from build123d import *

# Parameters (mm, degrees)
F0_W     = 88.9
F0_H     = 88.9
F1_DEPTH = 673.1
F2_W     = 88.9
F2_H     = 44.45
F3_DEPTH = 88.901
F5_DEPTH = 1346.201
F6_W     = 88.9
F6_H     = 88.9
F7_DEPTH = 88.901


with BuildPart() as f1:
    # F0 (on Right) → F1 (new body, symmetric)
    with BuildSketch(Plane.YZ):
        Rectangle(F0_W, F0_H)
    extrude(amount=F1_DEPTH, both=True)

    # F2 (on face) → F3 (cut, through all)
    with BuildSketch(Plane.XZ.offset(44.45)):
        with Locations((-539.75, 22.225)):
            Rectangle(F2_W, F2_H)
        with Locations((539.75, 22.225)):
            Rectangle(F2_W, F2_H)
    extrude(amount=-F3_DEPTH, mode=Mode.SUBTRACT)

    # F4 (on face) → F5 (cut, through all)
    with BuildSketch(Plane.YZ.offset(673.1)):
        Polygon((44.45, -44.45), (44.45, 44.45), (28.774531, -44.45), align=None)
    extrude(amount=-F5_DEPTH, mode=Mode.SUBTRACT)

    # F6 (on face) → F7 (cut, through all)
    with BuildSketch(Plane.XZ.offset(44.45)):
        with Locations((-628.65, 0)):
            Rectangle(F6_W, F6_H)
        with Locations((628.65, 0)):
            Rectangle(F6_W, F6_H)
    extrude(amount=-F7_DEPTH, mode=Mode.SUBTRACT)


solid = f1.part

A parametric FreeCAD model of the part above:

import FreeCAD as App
import Part
import Sketcher
Q = App.Units.Quantity


def add_polygon(sketch, points):
    """Adds a closed chain of lines whose ends are joined by coincident constraints."""
    first, n = sketch.GeometryCount, len(points)
    for a, b in zip(points, points[1:] + points[:1]):
        sketch.addGeometry(Part.LineSegment(App.Vector(*a, 0), App.Vector(*b, 0)), False)
    for i in range(n):
        sketch.addConstraint(Sketcher.Constraint("Coincident", first + i, 2, first + (i + 1) % n, 1))

doc = App.newDocument("Part")
params = doc.addObject("Spreadsheet::Sheet", "Params")
for row, (alias, value) in enumerate([
    ("sketch1_width", "3.5 in"),
    ("pad1_length", "53 in"),
    ("sketch2_width", "3.5 in"),
    ("sketch2_height", "1.75 in"),
    ("sketch3_height", "3.5 in"),
    ("sketch4_width", "3.5 in"),
], start=1):
    params.set(f"A{row}", alias)
    params.set(f"B{row}", "=" + value)
    params.setAlias(f"B{row}", alias)

body = doc.addObject("PartDesign::Body", "Body")

sketch1 = doc.addObject("Sketcher::SketchObject", "Sketch")
body.addObject(sketch1)
sketch1.AttachmentSupport = (doc.YZ_Plane, [""])
sketch1.MapMode = "FlatFace"
add_polygon(sketch1, [(-44, 44), (-44, -44), (44, -44), (44, 44)])
sketch1.addConstraint(Sketcher.Constraint("Vertical", 0))
sketch1.addConstraint(Sketcher.Constraint("Horizontal", 1))
sketch1.addConstraint(Sketcher.Constraint("Vertical", 2))
sketch1.addConstraint(Sketcher.Constraint("Horizontal", 3))
sketch1.addConstraint(Sketcher.Constraint("Symmetric", 0, 2, 2, 2, -1, 1))
sketch1.addConstraint(Sketcher.Constraint("Equal", 3, 0))
sketch1.addConstraint(Sketcher.Constraint("DistanceX", 1, 1, 1, 2, Q("3.5 in")))
sketch1.setExpression("Constraints[10]", "Params.sketch1_width")
pad1 = doc.addObject("PartDesign::Pad", "Pad")
body.addObject(pad1)
pad1.Profile = sketch1
pad1.setExpression("Length", "Params.pad1_length")
pad1.Midplane = True

sketch2 = doc.addObject("Sketcher::SketchObject", "Sketch001")
body.addObject(sketch2)
sketch2.AttachmentSupport = (doc.XZ_Plane, [""])
sketch2.MapMode = "FlatFace"
sketch2.AttachmentOffset = App.Placement(App.Vector(0, 0, 1.75 * 25.4), App.Rotation())
add_polygon(sketch2, [(-584, 44), (-584, 0), (-495, 0), (-495, 44)])
add_polygon(sketch2, [(495, 44), (495, 0), (584, 0), (584, 44)])
sketch2.addConstraint(Sketcher.Constraint("Vertical", 0))
sketch2.addConstraint(Sketcher.Constraint("Horizontal", 1))
sketch2.addConstraint(Sketcher.Constraint("Vertical", 2))
sketch2.addConstraint(Sketcher.Constraint("Horizontal", 3))
sketch2.addConstraint(Sketcher.Constraint("Vertical", 4))
sketch2.addConstraint(Sketcher.Constraint("Horizontal", 5))
sketch2.addConstraint(Sketcher.Constraint("Vertical", 6))
sketch2.addConstraint(Sketcher.Constraint("Horizontal", 7))
sketch2.addConstraint(Sketcher.Constraint("Symmetric", 1, 2, 4, 2, -1, 1))
sketch2.addConstraint(Sketcher.Constraint("Symmetric", 0, 2, 5, 2, -2))
sketch2.addConstraint(Sketcher.Constraint("Horizontal", 3, 2, 6, 2))
sketch2.addConstraint(Sketcher.Constraint("DistanceX", 1, 1, 1, 2, Q("3.5 in")))
sketch2.addConstraint(Sketcher.Constraint("DistanceX", 0, 2, -1, 1, Q("23 in")))
sketch2.addConstraint(Sketcher.Constraint("DistanceY", 0, 2, 0, 1, Q("1.75 in")))
sketch2.setExpression("Constraints[19]", "Params.sketch2_width")
sketch2.setExpression("Constraints[21]", "Params.sketch2_height")
pocket1 = doc.addObject("PartDesign::Pocket", "Pocket")
body.addObject(pocket1)
pocket1.Profile = sketch2
pocket1.Type = "ThroughAll"

sketch3 = doc.addObject("Sketcher::SketchObject", "Sketch002")
body.addObject(sketch3)
sketch3.AttachmentSupport = (doc.YZ_Plane, [""])
sketch3.MapMode = "FlatFace"
sketch3.AttachmentOffset = App.Placement(App.Vector(0, 0, 26.5 * 25.4), App.Rotation())
add_polygon(sketch3, [(44, -44), (44, 44), (29, -44)])
sketch3.addConstraint(Sketcher.Constraint("Vertical", 0))
sketch3.addConstraint(Sketcher.Constraint("Horizontal", 2))
sketch3.addConstraint(Sketcher.Constraint("DistanceY", 0, 1, 0, 2, Q("3.5 in")))
sketch3.addConstraint(Sketcher.Constraint("Angle", 1, Q("-100 deg")))
sketch3.addConstraint(Sketcher.Constraint("DistanceX", -1, 1, 0, 2, Q("1.75 in")))
sketch3.addConstraint(Sketcher.Constraint("DistanceY", -1, 1, 0, 2, Q("1.75 in")))
sketch3.setExpression("Constraints[5]", "Params.sketch3_height")
pocket2 = doc.addObject("PartDesign::Pocket", "Pocket001")
body.addObject(pocket2)
pocket2.Profile = sketch3
pocket2.Type = "ThroughAll"

sketch4 = doc.addObject("Sketcher::SketchObject", "Sketch003")
body.addObject(sketch4)
sketch4.AttachmentSupport = (doc.XZ_Plane, [""])
sketch4.MapMode = "FlatFace"
sketch4.AttachmentOffset = App.Placement(App.Vector(0, 0, 1.75 * 25.4), App.Rotation())
add_polygon(sketch4, [(-673, 44), (-673, -44), (-584, -44), (-584, 44)])
add_polygon(sketch4, [(584, 44), (584, -44), (673, -44), (673, 44)])
sketch4.addConstraint(Sketcher.Constraint("Vertical", 0))
sketch4.addConstraint(Sketcher.Constraint("Horizontal", 1))
sketch4.addConstraint(Sketcher.Constraint("Vertical", 2))
sketch4.addConstraint(Sketcher.Constraint("Horizontal", 3))
sketch4.addConstraint(Sketcher.Constraint("Vertical", 4))
sketch4.addConstraint(Sketcher.Constraint("Horizontal", 5))
sketch4.addConstraint(Sketcher.Constraint("Vertical", 6))
sketch4.addConstraint(Sketcher.Constraint("Horizontal", 7))
sketch4.addConstraint(Sketcher.Constraint("Symmetric", 2, 2, 4, 2, -1, 1))
sketch4.addConstraint(Sketcher.Constraint("Symmetric", 0, 2, 6, 2, -1, 1))
sketch4.addConstraint(Sketcher.Constraint("Horizontal", 1, 2, 4, 2))
sketch4.addConstraint(Sketcher.Constraint("Equal", 7, 0))
sketch4.addConstraint(Sketcher.Constraint("DistanceX", 1, 1, 1, 2, Q("3.5 in")))
sketch4.addConstraint(Sketcher.Constraint("DistanceX", 1, 2, -1, 1, Q("23 in")))
sketch4.setExpression("Constraints[20]", "Params.sketch4_width")
pocket3 = doc.addObject("PartDesign::Pocket", "Pocket002")
body.addObject(pocket3)
pocket3.Profile = sketch4
pocket3.Type = "ThroughAll"

doc.recompute()
